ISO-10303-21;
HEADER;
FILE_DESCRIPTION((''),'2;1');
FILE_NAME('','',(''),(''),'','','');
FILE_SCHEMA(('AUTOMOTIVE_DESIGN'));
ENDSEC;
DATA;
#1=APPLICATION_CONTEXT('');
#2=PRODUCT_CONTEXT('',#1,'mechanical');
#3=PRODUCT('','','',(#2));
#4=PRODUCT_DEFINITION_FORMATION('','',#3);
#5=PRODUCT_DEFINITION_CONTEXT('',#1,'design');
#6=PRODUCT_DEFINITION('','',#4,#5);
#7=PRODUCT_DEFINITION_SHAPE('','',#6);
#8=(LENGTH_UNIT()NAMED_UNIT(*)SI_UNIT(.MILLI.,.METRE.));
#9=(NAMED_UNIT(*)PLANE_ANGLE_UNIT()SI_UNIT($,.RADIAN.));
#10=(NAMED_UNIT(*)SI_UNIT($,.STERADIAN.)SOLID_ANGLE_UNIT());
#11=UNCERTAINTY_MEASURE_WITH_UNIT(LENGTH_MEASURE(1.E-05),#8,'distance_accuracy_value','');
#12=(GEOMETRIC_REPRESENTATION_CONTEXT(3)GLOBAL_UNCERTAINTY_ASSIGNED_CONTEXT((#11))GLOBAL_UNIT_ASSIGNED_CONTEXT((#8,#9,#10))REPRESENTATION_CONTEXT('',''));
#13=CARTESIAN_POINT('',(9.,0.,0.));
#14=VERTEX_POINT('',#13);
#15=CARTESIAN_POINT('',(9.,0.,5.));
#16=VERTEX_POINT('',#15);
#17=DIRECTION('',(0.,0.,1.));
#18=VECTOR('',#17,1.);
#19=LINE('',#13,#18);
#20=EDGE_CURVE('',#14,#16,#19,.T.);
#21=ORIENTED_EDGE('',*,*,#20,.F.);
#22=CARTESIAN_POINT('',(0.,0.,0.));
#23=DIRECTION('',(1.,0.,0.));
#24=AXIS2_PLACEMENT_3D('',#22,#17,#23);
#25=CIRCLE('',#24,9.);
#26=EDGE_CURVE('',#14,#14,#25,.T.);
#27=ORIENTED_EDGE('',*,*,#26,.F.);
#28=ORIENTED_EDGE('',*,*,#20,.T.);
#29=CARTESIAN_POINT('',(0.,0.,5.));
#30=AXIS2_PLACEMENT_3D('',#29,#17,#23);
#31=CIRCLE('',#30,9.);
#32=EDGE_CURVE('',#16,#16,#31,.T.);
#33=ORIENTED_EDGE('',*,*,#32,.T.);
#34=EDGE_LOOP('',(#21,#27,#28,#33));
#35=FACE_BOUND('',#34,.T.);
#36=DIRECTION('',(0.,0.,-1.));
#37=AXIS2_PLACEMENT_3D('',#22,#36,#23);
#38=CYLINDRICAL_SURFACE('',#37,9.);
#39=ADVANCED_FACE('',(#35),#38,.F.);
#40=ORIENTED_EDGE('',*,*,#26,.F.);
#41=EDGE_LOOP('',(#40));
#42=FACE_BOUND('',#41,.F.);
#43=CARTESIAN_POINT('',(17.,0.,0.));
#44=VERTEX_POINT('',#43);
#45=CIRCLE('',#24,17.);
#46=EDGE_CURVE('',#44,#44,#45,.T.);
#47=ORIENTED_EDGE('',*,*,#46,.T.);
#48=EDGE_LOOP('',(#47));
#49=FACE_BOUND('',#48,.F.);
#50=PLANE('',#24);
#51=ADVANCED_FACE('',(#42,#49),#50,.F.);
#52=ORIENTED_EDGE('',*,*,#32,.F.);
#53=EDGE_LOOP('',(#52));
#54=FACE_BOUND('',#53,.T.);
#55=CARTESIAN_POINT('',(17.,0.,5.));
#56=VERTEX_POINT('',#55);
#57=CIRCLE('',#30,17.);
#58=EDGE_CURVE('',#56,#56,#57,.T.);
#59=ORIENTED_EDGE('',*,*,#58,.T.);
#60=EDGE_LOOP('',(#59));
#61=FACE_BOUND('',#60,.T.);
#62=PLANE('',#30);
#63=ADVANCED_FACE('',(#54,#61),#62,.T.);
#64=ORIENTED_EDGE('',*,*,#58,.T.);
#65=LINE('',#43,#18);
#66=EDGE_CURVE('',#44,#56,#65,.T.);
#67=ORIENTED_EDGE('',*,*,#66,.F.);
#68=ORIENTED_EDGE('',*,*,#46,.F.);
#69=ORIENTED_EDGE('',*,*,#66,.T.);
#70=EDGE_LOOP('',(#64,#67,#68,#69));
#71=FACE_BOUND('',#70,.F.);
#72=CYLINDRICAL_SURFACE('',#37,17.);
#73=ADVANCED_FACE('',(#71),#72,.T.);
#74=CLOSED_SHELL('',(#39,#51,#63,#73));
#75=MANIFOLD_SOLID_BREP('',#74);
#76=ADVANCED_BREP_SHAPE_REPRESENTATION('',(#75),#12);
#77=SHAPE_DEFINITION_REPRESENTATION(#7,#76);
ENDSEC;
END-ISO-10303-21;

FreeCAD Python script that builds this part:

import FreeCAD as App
import Part
import Sketcher

doc = App.newDocument("Part")
body = doc.addObject("PartDesign::Body", "Body")

# Sketch on XY plane
sketch1 = body.newObject("Sketcher::SketchObject", "Sketch")
sketch1.AttachmentSupport = (doc.getObject("XY_Plane"), [""])
sketch1.MapMode = "FlatFace"
sketch1.addGeometry([
    Part.Circle(App.Vector(0, 0, 0), App.Vector(0, 0, 1), 17),
    Part.Circle(App.Vector(0, 0, 0), App.Vector(0, 0, 1), 9),
], False)
sketch1.addConstraint([
    Sketcher.Constraint("Coincident", 0, 3, -1, 1),
    Sketcher.Constraint("Coincident", 1, 3, -1, 1),
    Sketcher.Constraint("Diameter", 0, 34.0),
    Sketcher.Constraint("Diameter", 1, 18.0),
])
pad1 = body.newObject("PartDesign::Pad", "Pad")
pad1.Profile = sketch1
pad1.Length = 5

doc.recompute()
